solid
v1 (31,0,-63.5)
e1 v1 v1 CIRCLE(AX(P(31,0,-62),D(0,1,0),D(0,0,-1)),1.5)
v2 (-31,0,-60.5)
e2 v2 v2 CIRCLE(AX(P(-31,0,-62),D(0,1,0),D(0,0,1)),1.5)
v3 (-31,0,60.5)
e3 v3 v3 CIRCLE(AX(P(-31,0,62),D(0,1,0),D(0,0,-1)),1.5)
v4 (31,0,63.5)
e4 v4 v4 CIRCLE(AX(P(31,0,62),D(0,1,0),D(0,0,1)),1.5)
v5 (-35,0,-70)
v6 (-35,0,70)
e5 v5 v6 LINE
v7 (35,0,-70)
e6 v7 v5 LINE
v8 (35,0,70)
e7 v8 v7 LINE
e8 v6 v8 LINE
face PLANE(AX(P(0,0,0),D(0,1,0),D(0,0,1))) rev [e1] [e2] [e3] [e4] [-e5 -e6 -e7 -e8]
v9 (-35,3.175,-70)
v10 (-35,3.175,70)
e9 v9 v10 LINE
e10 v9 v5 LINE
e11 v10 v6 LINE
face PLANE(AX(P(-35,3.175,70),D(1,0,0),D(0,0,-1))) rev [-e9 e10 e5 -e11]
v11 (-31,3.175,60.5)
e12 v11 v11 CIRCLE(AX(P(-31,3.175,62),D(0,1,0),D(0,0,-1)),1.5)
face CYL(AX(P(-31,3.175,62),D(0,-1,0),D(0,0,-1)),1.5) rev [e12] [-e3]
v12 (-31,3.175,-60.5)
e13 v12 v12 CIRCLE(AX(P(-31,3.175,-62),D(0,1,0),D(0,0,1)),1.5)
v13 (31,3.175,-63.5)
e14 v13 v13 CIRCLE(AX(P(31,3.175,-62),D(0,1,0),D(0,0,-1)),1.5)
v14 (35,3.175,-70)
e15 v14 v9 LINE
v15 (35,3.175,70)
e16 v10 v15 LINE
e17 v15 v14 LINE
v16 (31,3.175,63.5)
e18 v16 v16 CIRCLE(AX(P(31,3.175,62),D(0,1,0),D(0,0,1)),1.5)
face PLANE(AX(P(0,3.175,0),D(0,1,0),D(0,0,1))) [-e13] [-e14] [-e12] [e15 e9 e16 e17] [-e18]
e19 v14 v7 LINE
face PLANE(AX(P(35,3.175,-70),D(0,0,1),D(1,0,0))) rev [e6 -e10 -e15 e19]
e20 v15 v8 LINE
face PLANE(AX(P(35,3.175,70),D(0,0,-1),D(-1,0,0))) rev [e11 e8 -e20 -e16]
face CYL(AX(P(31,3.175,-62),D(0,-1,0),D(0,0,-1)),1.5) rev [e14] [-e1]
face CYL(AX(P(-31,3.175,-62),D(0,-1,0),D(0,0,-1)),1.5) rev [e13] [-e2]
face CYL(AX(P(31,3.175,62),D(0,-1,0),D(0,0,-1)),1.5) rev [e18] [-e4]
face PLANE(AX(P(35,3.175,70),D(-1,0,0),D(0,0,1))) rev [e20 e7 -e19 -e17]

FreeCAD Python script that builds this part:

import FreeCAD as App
import Part
import Sketcher
from FreeCAD import Vector
Q = App.Units.Quantity


def add_polygon(sketch, points):
    """Adds a closed chain of lines whose ends are joined by coincident constraints."""
    first, n = sketch.GeometryCount, len(points)
    for a, b in zip(points, points[1:] + points[:1]):
        sketch.addGeometry(Part.LineSegment(App.Vector(*a, 0), App.Vector(*b, 0)), False)
    for i in range(n):
        sketch.addConstraint(Sketcher.Constraint("Coincident", first + i, 2, first + (i + 1) % n, 1))

doc = App.newDocument("Part")
body = doc.addObject("PartDesign::Body", "Body")

sketch1 = body.newObject("Sketcher::SketchObject", "Sketch")
sketch1.AttachmentSupport = (doc.getObject("XZ_Plane"), [""])
sketch1.MapMode = "FlatFace"
add_polygon(sketch1, [(-35, -70), (-35, 70), (35, 70), (35, -70)])
sketch1.addGeometry(Part.Circle(Vector(-31, 62, 0), Vector(0, 0, 1), 1.5), False)
sketch1.addGeometry(Part.Circle(Vector(31, 62, 0), Vector(0, 0, 1), 1.5), False)
sketch1.addGeometry(Part.Circle(Vector(-31, -62, 0), Vector(0, 0, 1), 1.5), False)
sketch1.addGeometry(Part.Circle(Vector(31, -62, 0), Vector(0, 0, 1), 1.5), False)
sketch1.addConstraint([
    Sketcher.Constraint("Vertical", 0),
    Sketcher.Constraint("Horizontal", 1),
    Sketcher.Constraint("Vertical", 2),
    Sketcher.Constraint("Horizontal", 3),
    Sketcher.Constraint("Equal", 4, 5),
    Sketcher.Constraint("Equal", 5, 6),
    Sketcher.Constraint("Equal", 6, 7),
    Sketcher.Constraint("Symmetric", 5, 3, 6, 3, -1, 1),
    Sketcher.Constraint("Symmetric", 4, 3, 7, 3, -1, 1),
    Sketcher.Constraint("Symmetric", 0, 2, 2, 2, -1, 1),
    Sketcher.Constraint("Symmetric", 4, 3, 5, 3, -2),
    Sketcher.Constraint("Diameter", 4, Q("3 mm")),
    Sketcher.Constraint("DistanceX", 1, 1, 1, 2, Q("70 mm")),
    Sketcher.Constraint("DistanceY", 0, 1, 0, 2, Q("140 mm")),
    Sketcher.Constraint("DistanceX", 4, 3, -1, 1, Q("31 mm")),
    Sketcher.Constraint("DistanceY", -1, 1, 4, 3, Q("62 mm")),
])
pad1 = body.newObject("PartDesign::Pad", "Pad")
pad1.Profile = sketch1
pad1.Length = 3.175
pad1.Reversed = True

doc.recompute()
